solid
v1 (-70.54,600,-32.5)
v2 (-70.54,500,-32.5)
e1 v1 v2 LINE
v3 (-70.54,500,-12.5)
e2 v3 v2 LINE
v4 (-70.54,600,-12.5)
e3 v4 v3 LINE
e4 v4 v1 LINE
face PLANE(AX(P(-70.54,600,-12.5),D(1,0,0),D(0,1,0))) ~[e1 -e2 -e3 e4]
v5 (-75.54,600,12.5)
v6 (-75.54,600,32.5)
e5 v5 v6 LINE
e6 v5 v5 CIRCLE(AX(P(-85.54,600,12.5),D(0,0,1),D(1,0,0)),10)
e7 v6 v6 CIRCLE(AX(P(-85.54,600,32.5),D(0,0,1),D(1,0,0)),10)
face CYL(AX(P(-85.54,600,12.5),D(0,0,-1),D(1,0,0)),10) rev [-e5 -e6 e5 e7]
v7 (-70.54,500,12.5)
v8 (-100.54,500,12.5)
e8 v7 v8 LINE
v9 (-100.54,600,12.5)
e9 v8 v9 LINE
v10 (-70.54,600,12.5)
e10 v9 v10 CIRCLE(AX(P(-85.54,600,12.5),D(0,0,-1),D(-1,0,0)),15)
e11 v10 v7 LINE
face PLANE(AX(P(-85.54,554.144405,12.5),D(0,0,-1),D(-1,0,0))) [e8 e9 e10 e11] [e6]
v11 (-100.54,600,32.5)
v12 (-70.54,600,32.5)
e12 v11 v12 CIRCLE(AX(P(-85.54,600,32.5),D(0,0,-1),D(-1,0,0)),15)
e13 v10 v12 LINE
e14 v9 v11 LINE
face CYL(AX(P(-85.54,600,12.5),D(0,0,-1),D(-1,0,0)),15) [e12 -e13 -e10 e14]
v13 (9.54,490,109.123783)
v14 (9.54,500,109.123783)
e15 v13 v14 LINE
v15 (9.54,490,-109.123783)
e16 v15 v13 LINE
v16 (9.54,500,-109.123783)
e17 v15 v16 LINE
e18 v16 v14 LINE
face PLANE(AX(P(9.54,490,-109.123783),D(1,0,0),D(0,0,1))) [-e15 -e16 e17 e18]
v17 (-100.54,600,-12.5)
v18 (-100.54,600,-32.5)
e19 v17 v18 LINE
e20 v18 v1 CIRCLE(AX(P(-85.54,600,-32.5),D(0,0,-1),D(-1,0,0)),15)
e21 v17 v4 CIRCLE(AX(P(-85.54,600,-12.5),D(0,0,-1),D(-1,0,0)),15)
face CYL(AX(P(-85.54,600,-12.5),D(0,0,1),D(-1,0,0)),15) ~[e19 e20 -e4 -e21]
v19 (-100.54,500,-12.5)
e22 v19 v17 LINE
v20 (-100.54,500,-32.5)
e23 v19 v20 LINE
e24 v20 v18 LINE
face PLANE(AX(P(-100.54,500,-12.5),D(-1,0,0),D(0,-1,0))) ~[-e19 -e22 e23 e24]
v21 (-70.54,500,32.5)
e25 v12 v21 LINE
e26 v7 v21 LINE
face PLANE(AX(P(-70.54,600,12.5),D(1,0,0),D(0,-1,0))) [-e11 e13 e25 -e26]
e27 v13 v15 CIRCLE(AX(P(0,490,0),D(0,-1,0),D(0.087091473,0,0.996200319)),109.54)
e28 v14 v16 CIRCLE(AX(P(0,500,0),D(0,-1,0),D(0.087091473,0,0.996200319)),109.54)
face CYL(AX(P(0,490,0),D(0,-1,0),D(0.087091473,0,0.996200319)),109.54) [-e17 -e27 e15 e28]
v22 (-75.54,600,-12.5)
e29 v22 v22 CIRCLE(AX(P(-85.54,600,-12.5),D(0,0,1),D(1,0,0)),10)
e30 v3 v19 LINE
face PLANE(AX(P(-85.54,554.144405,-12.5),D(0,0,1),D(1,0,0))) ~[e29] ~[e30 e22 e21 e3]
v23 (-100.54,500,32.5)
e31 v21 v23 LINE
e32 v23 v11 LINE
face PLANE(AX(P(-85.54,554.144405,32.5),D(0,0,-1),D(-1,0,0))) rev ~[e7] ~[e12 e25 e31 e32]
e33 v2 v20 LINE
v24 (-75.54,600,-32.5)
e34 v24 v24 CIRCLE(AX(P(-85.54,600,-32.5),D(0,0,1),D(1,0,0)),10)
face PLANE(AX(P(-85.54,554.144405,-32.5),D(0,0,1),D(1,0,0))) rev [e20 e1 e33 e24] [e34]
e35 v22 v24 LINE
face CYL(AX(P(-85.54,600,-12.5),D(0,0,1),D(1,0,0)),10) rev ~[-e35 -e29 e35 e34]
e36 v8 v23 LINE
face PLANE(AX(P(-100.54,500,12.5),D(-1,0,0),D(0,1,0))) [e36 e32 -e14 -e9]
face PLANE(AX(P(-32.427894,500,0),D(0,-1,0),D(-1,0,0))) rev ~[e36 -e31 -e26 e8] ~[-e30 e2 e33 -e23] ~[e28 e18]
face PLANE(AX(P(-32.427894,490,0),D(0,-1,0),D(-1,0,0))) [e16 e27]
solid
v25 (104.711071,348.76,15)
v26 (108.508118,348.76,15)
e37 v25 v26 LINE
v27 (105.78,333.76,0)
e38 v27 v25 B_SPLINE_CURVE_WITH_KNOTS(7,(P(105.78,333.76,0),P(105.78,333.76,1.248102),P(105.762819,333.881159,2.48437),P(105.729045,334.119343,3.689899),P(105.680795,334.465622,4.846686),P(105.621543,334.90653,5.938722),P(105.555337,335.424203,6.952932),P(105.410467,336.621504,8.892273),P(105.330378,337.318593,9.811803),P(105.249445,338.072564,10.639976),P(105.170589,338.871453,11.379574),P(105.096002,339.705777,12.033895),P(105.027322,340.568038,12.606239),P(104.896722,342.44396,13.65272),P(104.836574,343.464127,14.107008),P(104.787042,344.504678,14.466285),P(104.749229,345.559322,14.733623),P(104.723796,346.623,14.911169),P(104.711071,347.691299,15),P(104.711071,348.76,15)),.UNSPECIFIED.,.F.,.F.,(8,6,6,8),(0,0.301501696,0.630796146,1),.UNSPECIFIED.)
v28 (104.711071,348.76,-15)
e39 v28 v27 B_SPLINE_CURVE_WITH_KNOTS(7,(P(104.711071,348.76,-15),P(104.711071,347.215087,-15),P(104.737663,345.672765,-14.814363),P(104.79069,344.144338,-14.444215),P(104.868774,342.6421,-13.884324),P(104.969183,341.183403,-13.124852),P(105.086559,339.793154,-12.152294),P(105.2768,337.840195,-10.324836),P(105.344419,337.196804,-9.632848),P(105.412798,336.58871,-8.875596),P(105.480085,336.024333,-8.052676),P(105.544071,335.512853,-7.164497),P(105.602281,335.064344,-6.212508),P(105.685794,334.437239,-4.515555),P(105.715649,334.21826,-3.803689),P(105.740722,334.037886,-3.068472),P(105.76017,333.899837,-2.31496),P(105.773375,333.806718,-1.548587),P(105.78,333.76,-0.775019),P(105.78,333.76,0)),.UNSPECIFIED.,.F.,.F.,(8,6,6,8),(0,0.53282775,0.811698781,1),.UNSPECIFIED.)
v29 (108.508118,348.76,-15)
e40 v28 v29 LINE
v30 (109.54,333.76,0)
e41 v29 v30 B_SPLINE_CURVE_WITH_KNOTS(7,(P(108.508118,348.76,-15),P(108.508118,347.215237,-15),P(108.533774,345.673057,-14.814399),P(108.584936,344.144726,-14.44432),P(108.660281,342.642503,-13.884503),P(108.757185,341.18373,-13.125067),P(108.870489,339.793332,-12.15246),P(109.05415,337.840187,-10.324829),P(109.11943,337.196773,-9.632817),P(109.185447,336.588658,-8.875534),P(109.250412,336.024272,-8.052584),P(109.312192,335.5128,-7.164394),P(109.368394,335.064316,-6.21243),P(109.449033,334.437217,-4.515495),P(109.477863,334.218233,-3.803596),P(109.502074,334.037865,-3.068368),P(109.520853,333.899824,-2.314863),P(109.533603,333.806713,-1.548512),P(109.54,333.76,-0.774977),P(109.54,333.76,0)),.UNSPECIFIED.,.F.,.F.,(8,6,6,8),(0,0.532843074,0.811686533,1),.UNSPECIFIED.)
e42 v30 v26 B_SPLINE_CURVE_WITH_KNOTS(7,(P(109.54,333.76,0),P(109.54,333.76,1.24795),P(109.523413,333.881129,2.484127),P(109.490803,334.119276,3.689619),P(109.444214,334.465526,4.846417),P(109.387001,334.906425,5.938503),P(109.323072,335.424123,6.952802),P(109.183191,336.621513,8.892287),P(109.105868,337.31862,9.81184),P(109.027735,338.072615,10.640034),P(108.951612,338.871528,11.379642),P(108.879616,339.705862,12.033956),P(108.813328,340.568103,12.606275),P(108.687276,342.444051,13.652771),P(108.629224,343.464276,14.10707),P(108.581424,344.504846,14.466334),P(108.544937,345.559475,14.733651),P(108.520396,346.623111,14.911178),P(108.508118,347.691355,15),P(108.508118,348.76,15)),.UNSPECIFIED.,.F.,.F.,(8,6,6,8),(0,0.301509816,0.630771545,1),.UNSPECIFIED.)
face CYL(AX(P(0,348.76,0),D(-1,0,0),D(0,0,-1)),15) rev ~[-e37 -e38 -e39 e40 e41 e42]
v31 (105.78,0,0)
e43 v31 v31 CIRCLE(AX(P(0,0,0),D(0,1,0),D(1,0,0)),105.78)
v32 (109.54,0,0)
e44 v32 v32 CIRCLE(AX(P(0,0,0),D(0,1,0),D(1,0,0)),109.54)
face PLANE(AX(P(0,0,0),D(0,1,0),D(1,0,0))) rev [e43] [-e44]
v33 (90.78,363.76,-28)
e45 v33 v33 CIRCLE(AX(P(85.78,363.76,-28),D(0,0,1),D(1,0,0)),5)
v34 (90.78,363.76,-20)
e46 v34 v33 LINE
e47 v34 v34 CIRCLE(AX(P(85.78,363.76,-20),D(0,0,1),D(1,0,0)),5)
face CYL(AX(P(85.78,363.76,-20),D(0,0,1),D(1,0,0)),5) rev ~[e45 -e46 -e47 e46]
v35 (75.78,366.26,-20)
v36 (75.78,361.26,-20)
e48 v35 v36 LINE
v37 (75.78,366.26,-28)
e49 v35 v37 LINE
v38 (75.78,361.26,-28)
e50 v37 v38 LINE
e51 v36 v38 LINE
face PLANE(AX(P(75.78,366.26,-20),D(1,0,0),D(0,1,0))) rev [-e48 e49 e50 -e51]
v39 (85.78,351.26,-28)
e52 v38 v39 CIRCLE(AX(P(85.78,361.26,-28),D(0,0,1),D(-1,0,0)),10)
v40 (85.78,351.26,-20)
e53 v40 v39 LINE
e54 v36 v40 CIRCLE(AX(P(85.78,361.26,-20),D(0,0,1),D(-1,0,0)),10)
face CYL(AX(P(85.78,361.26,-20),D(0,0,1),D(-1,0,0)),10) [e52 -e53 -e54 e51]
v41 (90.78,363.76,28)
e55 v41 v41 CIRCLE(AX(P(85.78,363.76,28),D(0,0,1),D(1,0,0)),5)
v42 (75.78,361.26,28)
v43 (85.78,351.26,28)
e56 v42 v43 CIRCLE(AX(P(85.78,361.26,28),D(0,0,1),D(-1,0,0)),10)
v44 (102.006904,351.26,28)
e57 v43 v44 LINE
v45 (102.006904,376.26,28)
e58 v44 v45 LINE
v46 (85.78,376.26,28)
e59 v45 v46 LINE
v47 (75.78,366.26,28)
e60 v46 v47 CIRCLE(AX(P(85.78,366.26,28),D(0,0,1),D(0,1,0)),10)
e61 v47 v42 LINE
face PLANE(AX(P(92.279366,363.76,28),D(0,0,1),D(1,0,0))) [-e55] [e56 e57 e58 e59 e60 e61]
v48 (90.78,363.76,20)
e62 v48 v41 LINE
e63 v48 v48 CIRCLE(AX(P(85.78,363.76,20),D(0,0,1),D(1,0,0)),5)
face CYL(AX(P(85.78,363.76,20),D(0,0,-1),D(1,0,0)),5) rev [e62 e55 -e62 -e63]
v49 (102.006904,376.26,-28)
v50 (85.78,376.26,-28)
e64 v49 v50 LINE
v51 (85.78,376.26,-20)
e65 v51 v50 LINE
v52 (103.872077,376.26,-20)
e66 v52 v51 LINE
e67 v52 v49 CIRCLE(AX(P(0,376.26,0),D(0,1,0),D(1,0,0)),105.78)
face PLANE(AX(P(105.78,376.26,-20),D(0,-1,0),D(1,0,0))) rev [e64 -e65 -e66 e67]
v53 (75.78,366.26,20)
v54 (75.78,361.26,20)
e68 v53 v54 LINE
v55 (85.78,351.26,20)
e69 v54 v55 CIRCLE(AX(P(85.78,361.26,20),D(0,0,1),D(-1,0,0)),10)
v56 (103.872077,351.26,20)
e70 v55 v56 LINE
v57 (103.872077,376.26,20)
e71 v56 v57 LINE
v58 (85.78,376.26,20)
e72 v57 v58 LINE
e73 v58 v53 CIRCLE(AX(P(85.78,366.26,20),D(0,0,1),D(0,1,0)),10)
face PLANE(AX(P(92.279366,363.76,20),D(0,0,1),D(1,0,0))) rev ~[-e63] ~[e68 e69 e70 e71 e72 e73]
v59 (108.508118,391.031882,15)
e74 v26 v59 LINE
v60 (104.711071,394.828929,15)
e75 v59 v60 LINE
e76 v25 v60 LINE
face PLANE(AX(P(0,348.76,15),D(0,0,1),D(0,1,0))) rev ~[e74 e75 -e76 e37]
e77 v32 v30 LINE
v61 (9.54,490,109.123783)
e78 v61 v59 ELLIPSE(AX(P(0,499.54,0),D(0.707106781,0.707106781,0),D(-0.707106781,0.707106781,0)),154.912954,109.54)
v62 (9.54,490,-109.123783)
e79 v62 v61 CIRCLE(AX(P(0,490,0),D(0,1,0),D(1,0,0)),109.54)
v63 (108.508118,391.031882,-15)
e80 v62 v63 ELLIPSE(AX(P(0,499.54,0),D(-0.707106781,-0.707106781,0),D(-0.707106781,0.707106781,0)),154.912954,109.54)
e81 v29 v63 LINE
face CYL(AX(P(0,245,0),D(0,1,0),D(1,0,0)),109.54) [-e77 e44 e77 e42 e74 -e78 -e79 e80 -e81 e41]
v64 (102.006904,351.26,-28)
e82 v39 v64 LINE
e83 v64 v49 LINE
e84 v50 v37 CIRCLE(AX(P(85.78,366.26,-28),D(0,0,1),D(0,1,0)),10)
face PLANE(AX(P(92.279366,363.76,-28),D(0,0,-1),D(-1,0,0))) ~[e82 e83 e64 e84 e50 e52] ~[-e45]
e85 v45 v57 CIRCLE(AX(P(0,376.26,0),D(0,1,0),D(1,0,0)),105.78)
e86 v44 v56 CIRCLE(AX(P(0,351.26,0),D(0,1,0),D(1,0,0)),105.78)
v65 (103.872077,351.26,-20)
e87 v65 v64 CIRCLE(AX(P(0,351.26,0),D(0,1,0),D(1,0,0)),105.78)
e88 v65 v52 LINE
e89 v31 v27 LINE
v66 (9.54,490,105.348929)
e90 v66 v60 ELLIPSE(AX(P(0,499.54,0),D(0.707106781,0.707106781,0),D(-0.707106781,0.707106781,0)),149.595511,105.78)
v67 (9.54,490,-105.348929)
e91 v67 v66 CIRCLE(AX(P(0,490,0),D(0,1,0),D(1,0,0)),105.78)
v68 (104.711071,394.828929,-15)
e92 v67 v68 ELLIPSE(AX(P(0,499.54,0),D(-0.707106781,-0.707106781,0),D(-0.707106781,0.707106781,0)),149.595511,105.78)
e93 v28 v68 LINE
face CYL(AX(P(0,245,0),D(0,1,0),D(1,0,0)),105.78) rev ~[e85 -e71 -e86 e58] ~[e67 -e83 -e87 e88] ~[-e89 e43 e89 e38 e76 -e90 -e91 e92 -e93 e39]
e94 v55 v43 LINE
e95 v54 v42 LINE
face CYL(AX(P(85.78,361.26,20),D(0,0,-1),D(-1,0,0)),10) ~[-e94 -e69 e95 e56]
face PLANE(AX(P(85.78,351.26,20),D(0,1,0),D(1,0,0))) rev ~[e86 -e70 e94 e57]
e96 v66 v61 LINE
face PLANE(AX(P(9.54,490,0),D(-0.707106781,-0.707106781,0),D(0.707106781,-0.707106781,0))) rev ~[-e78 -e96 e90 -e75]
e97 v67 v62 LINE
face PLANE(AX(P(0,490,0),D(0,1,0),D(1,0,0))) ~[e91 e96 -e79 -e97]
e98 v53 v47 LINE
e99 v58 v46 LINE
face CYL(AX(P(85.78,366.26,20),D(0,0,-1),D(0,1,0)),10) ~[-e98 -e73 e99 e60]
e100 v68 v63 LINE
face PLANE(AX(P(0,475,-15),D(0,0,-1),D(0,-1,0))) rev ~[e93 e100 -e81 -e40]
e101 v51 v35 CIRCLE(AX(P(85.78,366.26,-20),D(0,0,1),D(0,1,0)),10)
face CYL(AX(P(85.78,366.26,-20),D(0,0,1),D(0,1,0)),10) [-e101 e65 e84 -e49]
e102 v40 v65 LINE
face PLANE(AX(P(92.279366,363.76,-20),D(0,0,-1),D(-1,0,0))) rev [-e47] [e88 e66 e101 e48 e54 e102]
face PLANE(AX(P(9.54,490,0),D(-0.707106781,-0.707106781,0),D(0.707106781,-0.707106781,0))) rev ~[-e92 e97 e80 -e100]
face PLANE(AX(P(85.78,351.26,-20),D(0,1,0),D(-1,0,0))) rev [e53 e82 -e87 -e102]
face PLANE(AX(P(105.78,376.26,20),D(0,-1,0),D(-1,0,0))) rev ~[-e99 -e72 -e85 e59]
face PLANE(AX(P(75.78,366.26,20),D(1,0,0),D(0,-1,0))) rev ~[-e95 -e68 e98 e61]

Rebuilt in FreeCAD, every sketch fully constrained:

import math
import FreeCAD as App
import Part
import Sketcher

V = App.Vector
Q = App.Units.Quantity


def add_polygon(sketch, points):
    """Adds a closed chain of lines whose ends are joined by coincident constraints."""
    first, n = sketch.GeometryCount, len(points)
    for a, b in zip(points, points[1:] + points[:1]):
        sketch.addGeometry(Part.LineSegment(App.Vector(*a, 0), App.Vector(*b, 0)), False)
    for i in range(n):
        sketch.addConstraint(Sketcher.Constraint("Coincident", first + i, 2, first + (i + 1) % n, 1))

doc = App.newDocument("Part")
params = doc.addObject("Spreadsheet::Sheet", "Params")
for row, (alias, value) in enumerate([
    ("sketch1_height", "490 mm"),
    ("sketch1_width", "3.76 mm"),
    ("revolution_angle", "360 deg"),
    ("sketch2_width", "100 mm"),
    ("sketch3_diameter", "10 mm"),
    ("sketch3_radius", "10 mm"),
    ("sketch3_width", "20 mm"),
    ("sketch3_height", "5 mm"),
    ("pad1_length", "8 mm"),
    ("sketch4_radius", "15 mm"),
    ("sketch4_width", "126.24 mm"),
    ("sketch5_radius", "109.54 mm"),
    ("pad2_length", "10 mm"),
    ("sketch6_diameter", "20 mm"),
    ("sketch6_radius", "15 mm"),
    ("sketch6_height", "100 mm"),
    ("pad3_length", "20 mm"),
], start=1):
    params.set(f"A{row}", alias)
    params.set(f"B{row}", "=" + value)
    params.setAlias(f"B{row}", alias)

body = doc.addObject("PartDesign::Body", "Body")

# Sketch on XY plane
sketch1 = body.newObject("Sketcher::SketchObject", "Sketch")
sketch1.AttachmentSupport = (doc.getObject("XY_Plane"), [""])
sketch1.MapMode = "FlatFace"
add_polygon(sketch1, [(105.8, 490), (105.8, 0), (109.5, 0), (109.5, 490)])  # lines 0-3
sketch1.addConstraint(Sketcher.Constraint("Vertical", 0))
sketch1.addConstraint(Sketcher.Constraint("Horizontal", 1))
sketch1.addConstraint(Sketcher.Constraint("Vertical", 2))
sketch1.addConstraint(Sketcher.Constraint("Horizontal", 3))
sketch1.addConstraint(Sketcher.Constraint("PointOnObject", 0, 2, -1))
sketch1.addConstraint(Sketcher.Constraint("DistanceY", 0, 2, 0, 1, Q("490 mm")))
sketch1.addConstraint(Sketcher.Constraint("DistanceX", 1, 1, 1, 2, Q("3.76 mm")))
sketch1.addConstraint(Sketcher.Constraint("DistanceX", -1, 1, 0, 2, Q("105.78 mm")))
sketch1.setExpression("Constraints[9]", "Params.sketch1_height")
sketch1.setExpression("Constraints[10]", "Params.sketch1_width")
revolution = body.newObject("PartDesign::Revolution", "Revolution")
revolution.Profile = sketch1
revolution.ReferenceAxis = (sketch1, ["V_Axis"])
revolution.setExpression("Angle", "Params.revolution_angle")

# Sketch on XY plane
sketch2 = body.newObject("Sketcher::SketchObject", "Sketch001")
sketch2.AttachmentSupport = (doc.getObject("XY_Plane"), [""])
sketch2.MapMode = "FlatFace"
add_polygon(sketch2, [(10, 490), (110, 390), (110, 490)])  # lines 0-2
sketch2.addConstraint(Sketcher.Constraint("Vertical", 1))
sketch2.addConstraint(Sketcher.Constraint("Horizontal", 2))
sketch2.addConstraint(Sketcher.Constraint("Equal", 2, 1))
sketch2.addConstraint(Sketcher.Constraint("DistanceX", 2, 2, 2, 1, Q("100 mm")))
sketch2.addConstraint(Sketcher.Constraint("DistanceY", -1, 1, 0, 2, Q("390 mm")))
sketch2.addConstraint(Sketcher.Constraint("DistanceX", -1, 1, 0, 2, Q("109.54 mm")))
sketch2.setExpression("Constraints[6]", "Params.sketch2_width")
pocket1 = body.newObject("PartDesign::Pocket", "Pocket")
pocket1.Profile = sketch2
pocket1.Type = "ThroughAll"
pocket1.Midplane = True

# Sketch on XY plane
sketch3 = body.newObject("Sketcher::SketchObject", "Sketch002")
sketch3.AttachmentSupport = (doc.getObject("XY_Plane"), [""])
sketch3.MapMode = "FlatFace"
sketch3.AttachmentOffset = App.Placement(V(0, 0, 20), App.Rotation())
sketch3.addGeometry(Part.LineSegment(V(106, 376, 0), V(86, 376, 0)), False)
sketch3.addGeometry(Part.ArcOfCircle(Part.Circle(V(86, 366, 0), V(0, 0, 1), 10), math.radians(90), math.radians(180)), False)
sketch3.addGeometry(Part.LineSegment(V(76, 366, 0), V(76, 361, 0)), False)
sketch3.addGeometry(Part.ArcOfCircle(Part.Circle(V(86, 361, 0), V(0, 0, 1), 10), math.radians(180), math.radians(270)), False)
sketch3.addGeometry(Part.LineSegment(V(86, 351, 0), V(106, 351, 0)), False)
sketch3.addGeometry(Part.LineSegment(V(106, 351, 0), V(106, 376, 0)), False)
sketch3.addGeometry(Part.Circle(V(86, 364, 0), V(0, 0, 1), 5), False)
sketch3.addConstraint(Sketcher.Constraint("Tangent", 0, 2, 1, 1))
sketch3.addConstraint(Sketcher.Constraint("Tangent", 1, 2, 2, 1))
sketch3.addConstraint(Sketcher.Constraint("Tangent", 2, 2, 3, 1))
sketch3.addConstraint(Sketcher.Constraint("Tangent", 3, 2, 4, 1))
sketch3.addConstraint(Sketcher.Constraint("Coincident", 4, 2, 5, 1))
sketch3.addConstraint(Sketcher.Constraint("Coincident", 5, 2, 0, 1))
sketch3.addConstraint(Sketcher.Constraint("Horizontal", 0))
sketch3.addConstraint(Sketcher.Constraint("Vertical", 2))
sketch3.addConstraint(Sketcher.Constraint("Horizontal", 4))
sketch3.addConstraint(Sketcher.Constraint("Vertical", 5))
sketch3.addConstraint(Sketcher.Constraint("Equal", 1, 3))
sketch3.addConstraint(Sketcher.Constraint("Vertical", 3, 3, 6, 3))
sketch3.addConstraint(Sketcher.Constraint("Diameter", 6, Q("10 mm")))
sketch3.addConstraint(Sketcher.Constraint("Radius", 1, Q("10 mm")))
sketch3.addConstraint(Sketcher.Constraint("DistanceX", 0, 2, 0, 1, Q("20 mm")))
sketch3.addConstraint(Sketcher.Constraint("DistanceY", 2, 2, 2, 1, Q("5 mm")))
sketch3.addConstraint(Sketcher.Constraint("DistanceY", 6, 3, 1, 3, Q("2.5 mm")))
sketch3.addConstraint(Sketcher.Constraint("DistanceX", -1, 1, 1, 3, Q("85.78 mm")))
sketch3.addConstraint(Sketcher.Constraint("DistanceY", -1, 1, 1, 3, Q("366.26 mm")))
sketch3.setExpression("Constraints[12]", "Params.sketch3_diameter")
sketch3.setExpression("Constraints[13]", "Params.sketch3_radius")
sketch3.setExpression("Constraints[14]", "Params.sketch3_width")
sketch3.setExpression("Constraints[15]", "Params.sketch3_height")
pad1 = body.newObject("PartDesign::Pad", "Pad")
pad1.Profile = sketch3
pad1.setExpression("Length", "Params.pad1_length")
doc.recompute()

mirrored = body.newObject("PartDesign::Mirrored", "Mirrored")
mirrored.Originals = [pad1]
mirrored.MirrorPlane = (doc.getObject("XY_Plane"), [""])
body.Tip = mirrored

# Sketch on YZ plane
sketch4 = body.newObject("Sketcher::SketchObject", "Sketch003")
sketch4.AttachmentSupport = (doc.getObject("YZ_Plane"), [""])
sketch4.MapMode = "FlatFace"
sketch4.addGeometry(Part.LineSegment(V(475, 15, 0), V(349, 15, 0)), False)
sketch4.addGeometry(Part.ArcOfCircle(Part.Circle(V(349, 0, 0), V(0, 0, 1), 15), math.radians(90), math.radians(270)), False)
sketch4.addGeometry(Part.LineSegment(V(349, -15, 0), V(475, -15, 0)), False)
sketch4.addGeometry(Part.ArcOfCircle(Part.Circle(V(475, 0, 0), V(0, 0, 1), 15), math.radians(-90), math.radians(90)), False)
sketch4.addConstraint(Sketcher.Constraint("Tangent", 0, 2, 1, 1))
sketch4.addConstraint(Sketcher.Constraint("Tangent", 1, 2, 2, 1))
sketch4.addConstraint(Sketcher.Constraint("Tangent", 2, 2, 3, 1))
sketch4.addConstraint(Sketcher.Constraint("Tangent", 3, 2, 0, 1))
sketch4.addConstraint(Sketcher.Constraint("Horizontal", 0))
sketch4.addConstraint(Sketcher.Constraint("Horizontal", 2))
sketch4.addConstraint(Sketcher.Constraint("PointOnObject", 1, 3, -1))
sketch4.addConstraint(Sketcher.Constraint("Radius", 1, Q("15 mm")))
sketch4.addConstraint(Sketcher.Constraint("DistanceX", -1, 1, 3, 3, Q("475 mm")))
sketch4.addConstraint(Sketcher.Constraint("DistanceX", 0, 2, 0, 1, Q("126.24 mm")))
sketch4.setExpression("Constraints[7]", "Params.sketch4_radius")
sketch4.setExpression("Constraints[9]", "Params.sketch4_width")
pocket2 = body.newObject("PartDesign::Pocket", "Pocket001")
pocket2.Profile = sketch4
pocket2.Type = "ThroughAll"
pocket2.Reversed = True
body2 = doc.addObject("PartDesign::Body", "Body001")

# Sketch on XZ plane
sketch5 = body2.newObject("Sketcher::SketchObject", "Sketch004")
sketch5.AttachmentSupport = (doc.getObject("XZ_Plane001"), [""])
sketch5.MapMode = "FlatFace"
sketch5.AttachmentOffset = App.Placement(V(0, 0, -490), App.Rotation())
sketch5.addGeometry(Part.LineSegment(V(10, 109, 0), V(10, -109, 0)), False)
sketch5.addGeometry(Part.ArcOfCircle(Part.Circle(V(0, 0, 0), V(0, 0, 1), 110), math.radians(85), math.radians(275)), False)
sketch5.addConstraint(Sketcher.Constraint("Coincident", 0, 1, 1, 1))
sketch5.addConstraint(Sketcher.Constraint("Coincident", 1, 2, 0, 2))
sketch5.addConstraint(Sketcher.Constraint("Vertical", 0))
sketch5.addConstraint(Sketcher.Constraint("Coincident", 1, 3, -1, 1))
sketch5.addConstraint(Sketcher.Constraint("Radius", 1, Q("109.54 mm")))
sketch5.addConstraint(Sketcher.Constraint("DistanceX", -1, 1, 0, 1, Q("9.54 mm")))
sketch5.setExpression("Constraints[4]", "Params.sketch5_radius")
pad2 = body2.newObject("PartDesign::Pad", "Pad001")
pad2.Profile = sketch5
pad2.setExpression("Length", "Params.pad2_length")
pad2.Reversed = True

# Sketch on XY plane
sketch6 = body2.newObject("Sketcher::SketchObject", "Sketch005")
sketch6.AttachmentSupport = (doc.getObject("XY_Plane001"), [""])
sketch6.MapMode = "FlatFace"
sketch6.AttachmentOffset = App.Placement(V(0, 0, 12.5), App.Rotation())
sketch6.addGeometry(Part.LineSegment(V(-101, 600, 0), V(-101, 500, 0)), False)
sketch6.addGeometry(Part.LineSegment(V(-101, 500, 0), V(-71, 500, 0)), False)
sketch6.addGeometry(Part.LineSegment(V(-71, 500, 0), V(-71, 600, 0)), False)
sketch6.addGeometry(Part.ArcOfCircle(Part.Circle(V(-86, 600, 0), V(0, 0, 1), 15), math.radians(0), math.radians(180)), False)
sketch6.addGeometry(Part.Circle(V(-86, 600, 0), V(0, 0, 1), 10), False)
sketch6.addConstraint(Sketcher.Constraint("Coincident", 0, 2, 1, 1))
sketch6.addConstraint(Sketcher.Constraint("Coincident", 1, 2, 2, 1))
sketch6.addConstraint(Sketcher.Constraint("Tangent", 2, 2, 3, 1))
sketch6.addConstraint(Sketcher.Constraint("Tangent", 3, 2, 0, 1))
sketch6.addConstraint(Sketcher.Constraint("Vertical", 0))
sketch6.addConstraint(Sketcher.Constraint("Horizontal", 1))
sketch6.addConstraint(Sketcher.Constraint("Vertical", 2))
sketch6.addConstraint(Sketcher.Constraint("Coincident", 4, 3, 3, 3))
sketch6.addConstraint(Sketcher.Constraint("Diameter", 4, Q("20 mm")))
sketch6.addConstraint(Sketcher.Constraint("Radius", 3, Q("15 mm")))
sketch6.addConstraint(Sketcher.Constraint("DistanceY", 0, 2, 0, 1, Q("100 mm")))
sketch6.addConstraint(Sketcher.Constraint("DistanceY", -1, 1, 3, 3, Q("600 mm")))
sketch6.addConstraint(Sketcher.Constraint("DistanceX", 3, 3, -1, 1, Q("85.54 mm")))
sketch6.setExpression("Constraints[8]", "Params.sketch6_diameter")
sketch6.setExpression("Constraints[9]", "Params.sketch6_radius")
sketch6.setExpression("Constraints[10]", "Params.sketch6_height")
pad3 = body2.newObject("PartDesign::Pad", "Pad002")
pad3.Profile = sketch6
pad3.setExpression("Length", "Params.pad3_length")
doc.recompute()

mirrored2 = body2.newObject("PartDesign::Mirrored", "Mirrored001")
mirrored2.Originals = [pad3]
mirrored2.MirrorPlane = (doc.getObject("XY_Plane001"), [""])
body2.Tip = mirrored2

doc.recompute()
